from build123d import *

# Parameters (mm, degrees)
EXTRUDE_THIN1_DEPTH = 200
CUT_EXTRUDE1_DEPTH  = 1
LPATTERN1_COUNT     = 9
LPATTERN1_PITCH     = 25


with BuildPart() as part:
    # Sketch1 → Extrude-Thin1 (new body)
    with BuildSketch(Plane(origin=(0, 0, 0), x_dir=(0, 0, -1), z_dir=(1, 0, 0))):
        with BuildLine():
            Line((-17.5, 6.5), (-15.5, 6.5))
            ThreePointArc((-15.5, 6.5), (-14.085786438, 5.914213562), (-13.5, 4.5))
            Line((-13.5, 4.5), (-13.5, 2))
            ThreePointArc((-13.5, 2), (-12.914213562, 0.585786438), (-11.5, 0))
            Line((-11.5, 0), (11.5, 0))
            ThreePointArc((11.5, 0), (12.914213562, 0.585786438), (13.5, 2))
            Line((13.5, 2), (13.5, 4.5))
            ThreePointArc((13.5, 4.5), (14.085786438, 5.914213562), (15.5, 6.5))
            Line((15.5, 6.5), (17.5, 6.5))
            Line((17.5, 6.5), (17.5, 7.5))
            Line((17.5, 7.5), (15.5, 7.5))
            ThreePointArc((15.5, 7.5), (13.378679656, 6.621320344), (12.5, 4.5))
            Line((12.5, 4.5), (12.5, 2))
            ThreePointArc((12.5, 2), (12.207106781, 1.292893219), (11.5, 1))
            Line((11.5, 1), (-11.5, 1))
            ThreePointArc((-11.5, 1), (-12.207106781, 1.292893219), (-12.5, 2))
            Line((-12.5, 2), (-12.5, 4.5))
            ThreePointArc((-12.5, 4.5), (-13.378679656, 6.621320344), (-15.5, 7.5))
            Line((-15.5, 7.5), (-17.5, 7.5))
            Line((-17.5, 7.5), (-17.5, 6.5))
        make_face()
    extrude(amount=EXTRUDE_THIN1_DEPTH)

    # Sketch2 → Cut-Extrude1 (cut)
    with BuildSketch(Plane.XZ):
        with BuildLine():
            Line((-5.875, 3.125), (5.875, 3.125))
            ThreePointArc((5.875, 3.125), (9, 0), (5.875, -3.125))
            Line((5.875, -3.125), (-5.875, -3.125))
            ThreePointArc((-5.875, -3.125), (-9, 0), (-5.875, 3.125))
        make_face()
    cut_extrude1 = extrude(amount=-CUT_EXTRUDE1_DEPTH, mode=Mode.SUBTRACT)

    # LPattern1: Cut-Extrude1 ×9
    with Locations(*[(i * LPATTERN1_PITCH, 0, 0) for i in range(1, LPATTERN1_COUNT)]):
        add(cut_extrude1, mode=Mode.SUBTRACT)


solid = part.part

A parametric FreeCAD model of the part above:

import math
import FreeCAD as App
import Part
import Sketcher

doc = App.newDocument("Part")
params = doc.addObject("Spreadsheet::Sheet", "Params")
for row, (alias, value) in enumerate([
    ("sketch1_radius", "2 mm"),
    ("sketch1_radius2", "3 mm"),
    ("sketch1_height", "2 mm"),
    ("sketch1_height2", "23 mm"),
    ("sketch1_width", "2.5 mm"),
    ("pad1_length", "200 mm"),
    ("sketch2_width", "11.75 mm"),
    ("pocket1_length", "1 mm"),
    ("linearpattern_pitch", "25 mm"),
], start=1):
    params.set(f"A{row}", alias)
    params.set(f"B{row}", "=" + value)
    params.setAlias(f"B{row}", alias)

body = doc.addObject("PartDesign::Body", "Body")

sketch1 = body.newObject("Sketcher::SketchObject", "Sketch")
sketch1.AttachmentSupport = (doc.getObject("YZ_Plane"), [""])
sketch1.MapMode = "FlatFace"
sketch1.addGeometry([
    Part.LineSegment(App.Vector(6.5, 17.5, 0), App.Vector(6.5, 15.5, 0)),
    Part.ArcOfCircle(Part.Circle(App.Vector(4.5, 15.5, 0), App.Vector(0, 0, 1), 2), math.radians(-90), math.radians(0)),
    Part.LineSegment(App.Vector(4.5, 13.5, 0), App.Vector(2, 13.5, 0)),
    Part.ArcOfCircle(Part.Circle(App.Vector(2, 11.5, 0), App.Vector(0, 0, 1), 2), math.radians(90), math.radians(180)),
    Part.LineSegment(App.Vector(0, 11.5, 0), App.Vector(0, -11.5, 0)),
    Part.ArcOfCircle(Part.Circle(App.Vector(2, -11.5, 0), App.Vector(0, 0, 1), 2), math.radians(-180), math.radians(-90)),
    Part.LineSegment(App.Vector(2, -13.5, 0), App.Vector(4.5, -13.5, 0)),
    Part.ArcOfCircle(Part.Circle(App.Vector(4.5, -15.5, 0), App.Vector(0, 0, 1), 2), math.radians(0), math.radians(90)),
    Part.LineSegment(App.Vector(6.5, -15.5, 0), App.Vector(6.5, -17.5, 0)),
    Part.LineSegment(App.Vector(6.5, -17.5, 0), App.Vector(7.5, -17.5, 0)),
    Part.LineSegment(App.Vector(7.5, -17.5, 0), App.Vector(7.5, -15.5, 0)),
    Part.ArcOfCircle(Part.Circle(App.Vector(4.5, -15.5, 0), App.Vector(0, 0, 1), 3), math.radians(0), math.radians(90)),
    Part.LineSegment(App.Vector(4.5, -12.5, 0), App.Vector(2, -12.5, 0)),
    Part.ArcOfCircle(Part.Circle(App.Vector(2, -11.5, 0), App.Vector(0, 0, 1), 1), math.radians(-180), math.radians(-90)),
    Part.LineSegment(App.Vector(1, -11.5, 0), App.Vector(1, 11.5, 0)),
    Part.ArcOfCircle(Part.Circle(App.Vector(2, 11.5, 0), App.Vector(0, 0, 1), 1), math.radians(90), math.radians(180)),
    Part.LineSegment(App.Vector(2, 12.5, 0), App.Vector(4.5, 12.5, 0)),
    Part.ArcOfCircle(Part.Circle(App.Vector(4.5, 15.5, 0), App.Vector(0, 0, 1), 3), math.radians(-90), math.radians(0)),
    Part.LineSegment(App.Vector(7.5, 15.5, 0), App.Vector(7.5, 17.5, 0)),
    Part.LineSegment(App.Vector(7.5, 17.5, 0), App.Vector(6.5, 17.5, 0)),
], False)
sketch1.addConstraint([
    Sketcher.Constraint("Tangent", 0, 2, 1, 2),
    Sketcher.Constraint("Tangent", 1, 1, 2, 1),
    Sketcher.Constraint("Tangent", 2, 2, 3, 1),
    Sketcher.Constraint("Tangent", 3, 2, 4, 1),
    Sketcher.Constraint("Tangent", 4, 2, 5, 1),
    Sketcher.Constraint("Tangent", 5, 2, 6, 1),
    Sketcher.Constraint("Tangent", 6, 2, 7, 2),
    Sketcher.Constraint("Tangent", 7, 1, 8, 1),
    Sketcher.Constraint("Coincident", 8, 2, 9, 1),
    Sketcher.Constraint("Coincident", 9, 2, 10, 1),
    Sketcher.Constraint("Tangent", 10, 2, 11, 1),
    Sketcher.Constraint("Tangent", 11, 2, 12, 1),
    Sketcher.Constraint("Tangent", 12, 2, 13, 2),
    Sketcher.Constraint("Tangent", 13, 1, 14, 1),
    Sketcher.Constraint("Tangent", 14, 2, 15, 2),
    Sketcher.Constraint("Tangent", 15, 1, 16, 1),
    Sketcher.Constraint("Tangent", 16, 2, 17, 1),
    Sketcher.Constraint("Tangent", 17, 2, 18, 1),
    Sketcher.Constraint("Coincident", 18, 2, 19, 1),
    Sketcher.Constraint("Coincident", 19, 2, 0, 1),
    Sketcher.Constraint("Vertical", 0),
    Sketcher.Constraint("Horizontal", 2),
    Sketcher.Constraint("Vertical", 4),
    Sketcher.Constraint("Horizontal", 6),
    Sketcher.Constraint("Vertical", 8),
    Sketcher.Constraint("Horizontal", 9),
    Sketcher.Constraint("Vertical", 10),
    Sketcher.Constraint("Horizontal", 12),
    Sketcher.Constraint("Vertical", 14),
    Sketcher.Constraint("Horizontal", 16),
    Sketcher.Constraint("Vertical", 18),
    Sketcher.Constraint("Horizontal", 19),
    Sketcher.Constraint("Coincident", 11, 3, 7, 3),
    Sketcher.Constraint("Coincident", 13, 3, 5, 3),
    Sketcher.Constraint("Coincident", 15, 3, 3, 3),
    Sketcher.Constraint("Coincident", 17, 3, 1, 3),
    Sketcher.Constraint("Equal", 1, 3),
    Sketcher.Constraint("Equal", 3, 5),
    Sketcher.Constraint("Equal", 5, 7),
    Sketcher.Constraint("Symmetric", 3, 2, 4, 2, -1, 1),
    Sketcher.Constraint("Symmetric", 9, 2, 18, 2, -1),
    Sketcher.Constraint("Radius", 1, 2.0),
    Sketcher.Constraint("Radius", 11, 3.0),
    Sketcher.Constraint("DistanceY", 0, 2, 0, 1, 2.0),
    Sketcher.Constraint("DistanceY", 4, 2, 4, 1, 23.0),
    Sketcher.Constraint("DistanceX", 2, 2, 2, 1, 2.5),
])
sketch1.setExpression("Constraints[41]", "Params.sketch1_radius")
sketch1.setExpression("Constraints[42]", "Params.sketch1_radius2")
sketch1.setExpression("Constraints[43]", "Params.sketch1_height")
sketch1.setExpression("Constraints[44]", "Params.sketch1_height2")
sketch1.setExpression("Constraints[45]", "Params.sketch1_width")
pad1 = body.newObject("PartDesign::Pad", "Pad")
pad1.Profile = sketch1
pad1.setExpression("Length", "Params.pad1_length")

sketch2 = body.newObject("Sketcher::SketchObject", "Sketch001")
sketch2.AttachmentSupport = (doc.getObject("XZ_Plane"), [""])
sketch2.MapMode = "FlatFace"
sketch2.addGeometry([
    Part.LineSegment(App.Vector(5.875, 3.125, 0), App.Vector(-5.875, 3.125, 0)),
    Part.ArcOfCircle(Part.Circle(App.Vector(-5.875, 0, 0), App.Vector(0, 0, 1), 3.125), math.radians(90), math.radians(270)),
    Part.LineSegment(App.Vector(-5.875, -3.125, 0), App.Vector(5.875, -3.125, 0)),
    Part.ArcOfCircle(Part.Circle(App.Vector(5.875, 0, 0), App.Vector(0, 0, 1), 3.125), math.radians(-90), math.radians(90)),
], False)
sketch2.addConstraint([
    Sketcher.Constraint("Tangent", 0, 2, 1, 1),
    Sketcher.Constraint("Tangent", 1, 2, 2, 1),
    Sketcher.Constraint("Tangent", 2, 2, 3, 1),
    Sketcher.Constraint("Tangent", 3, 2, 0, 1),
    Sketcher.Constraint("Horizontal", 0),
    Sketcher.Constraint("Horizontal", 2),
    Sketcher.Constraint("Symmetric", 1, 3, 3, 3, -1, 1),
    Sketcher.Constraint("Radius", 1, 3.125),
    Sketcher.Constraint("DistanceX", 0, 2, 0, 1, 11.75),
])
sketch2.setExpression("Constraints[8]", "Params.sketch2_width")
pocket1 = body.newObject("PartDesign::Pocket", "Pocket")
pocket1.Profile = sketch2
pocket1.setExpression("Length", "Params.pocket1_length")
doc.recompute()

linearpattern = body.newObject("PartDesign::LinearPattern", "LinearPattern")
linearpattern.Originals = [pocket1]
linearpattern.Direction = (doc.getObject("X_Axis"), [""])
linearpattern.Mode = "offset"
linearpattern.setExpression("Offset", "Params.linearpattern_pitch")
linearpattern.Occurrences = 9
body.Tip = linearpattern

doc.recompute()
